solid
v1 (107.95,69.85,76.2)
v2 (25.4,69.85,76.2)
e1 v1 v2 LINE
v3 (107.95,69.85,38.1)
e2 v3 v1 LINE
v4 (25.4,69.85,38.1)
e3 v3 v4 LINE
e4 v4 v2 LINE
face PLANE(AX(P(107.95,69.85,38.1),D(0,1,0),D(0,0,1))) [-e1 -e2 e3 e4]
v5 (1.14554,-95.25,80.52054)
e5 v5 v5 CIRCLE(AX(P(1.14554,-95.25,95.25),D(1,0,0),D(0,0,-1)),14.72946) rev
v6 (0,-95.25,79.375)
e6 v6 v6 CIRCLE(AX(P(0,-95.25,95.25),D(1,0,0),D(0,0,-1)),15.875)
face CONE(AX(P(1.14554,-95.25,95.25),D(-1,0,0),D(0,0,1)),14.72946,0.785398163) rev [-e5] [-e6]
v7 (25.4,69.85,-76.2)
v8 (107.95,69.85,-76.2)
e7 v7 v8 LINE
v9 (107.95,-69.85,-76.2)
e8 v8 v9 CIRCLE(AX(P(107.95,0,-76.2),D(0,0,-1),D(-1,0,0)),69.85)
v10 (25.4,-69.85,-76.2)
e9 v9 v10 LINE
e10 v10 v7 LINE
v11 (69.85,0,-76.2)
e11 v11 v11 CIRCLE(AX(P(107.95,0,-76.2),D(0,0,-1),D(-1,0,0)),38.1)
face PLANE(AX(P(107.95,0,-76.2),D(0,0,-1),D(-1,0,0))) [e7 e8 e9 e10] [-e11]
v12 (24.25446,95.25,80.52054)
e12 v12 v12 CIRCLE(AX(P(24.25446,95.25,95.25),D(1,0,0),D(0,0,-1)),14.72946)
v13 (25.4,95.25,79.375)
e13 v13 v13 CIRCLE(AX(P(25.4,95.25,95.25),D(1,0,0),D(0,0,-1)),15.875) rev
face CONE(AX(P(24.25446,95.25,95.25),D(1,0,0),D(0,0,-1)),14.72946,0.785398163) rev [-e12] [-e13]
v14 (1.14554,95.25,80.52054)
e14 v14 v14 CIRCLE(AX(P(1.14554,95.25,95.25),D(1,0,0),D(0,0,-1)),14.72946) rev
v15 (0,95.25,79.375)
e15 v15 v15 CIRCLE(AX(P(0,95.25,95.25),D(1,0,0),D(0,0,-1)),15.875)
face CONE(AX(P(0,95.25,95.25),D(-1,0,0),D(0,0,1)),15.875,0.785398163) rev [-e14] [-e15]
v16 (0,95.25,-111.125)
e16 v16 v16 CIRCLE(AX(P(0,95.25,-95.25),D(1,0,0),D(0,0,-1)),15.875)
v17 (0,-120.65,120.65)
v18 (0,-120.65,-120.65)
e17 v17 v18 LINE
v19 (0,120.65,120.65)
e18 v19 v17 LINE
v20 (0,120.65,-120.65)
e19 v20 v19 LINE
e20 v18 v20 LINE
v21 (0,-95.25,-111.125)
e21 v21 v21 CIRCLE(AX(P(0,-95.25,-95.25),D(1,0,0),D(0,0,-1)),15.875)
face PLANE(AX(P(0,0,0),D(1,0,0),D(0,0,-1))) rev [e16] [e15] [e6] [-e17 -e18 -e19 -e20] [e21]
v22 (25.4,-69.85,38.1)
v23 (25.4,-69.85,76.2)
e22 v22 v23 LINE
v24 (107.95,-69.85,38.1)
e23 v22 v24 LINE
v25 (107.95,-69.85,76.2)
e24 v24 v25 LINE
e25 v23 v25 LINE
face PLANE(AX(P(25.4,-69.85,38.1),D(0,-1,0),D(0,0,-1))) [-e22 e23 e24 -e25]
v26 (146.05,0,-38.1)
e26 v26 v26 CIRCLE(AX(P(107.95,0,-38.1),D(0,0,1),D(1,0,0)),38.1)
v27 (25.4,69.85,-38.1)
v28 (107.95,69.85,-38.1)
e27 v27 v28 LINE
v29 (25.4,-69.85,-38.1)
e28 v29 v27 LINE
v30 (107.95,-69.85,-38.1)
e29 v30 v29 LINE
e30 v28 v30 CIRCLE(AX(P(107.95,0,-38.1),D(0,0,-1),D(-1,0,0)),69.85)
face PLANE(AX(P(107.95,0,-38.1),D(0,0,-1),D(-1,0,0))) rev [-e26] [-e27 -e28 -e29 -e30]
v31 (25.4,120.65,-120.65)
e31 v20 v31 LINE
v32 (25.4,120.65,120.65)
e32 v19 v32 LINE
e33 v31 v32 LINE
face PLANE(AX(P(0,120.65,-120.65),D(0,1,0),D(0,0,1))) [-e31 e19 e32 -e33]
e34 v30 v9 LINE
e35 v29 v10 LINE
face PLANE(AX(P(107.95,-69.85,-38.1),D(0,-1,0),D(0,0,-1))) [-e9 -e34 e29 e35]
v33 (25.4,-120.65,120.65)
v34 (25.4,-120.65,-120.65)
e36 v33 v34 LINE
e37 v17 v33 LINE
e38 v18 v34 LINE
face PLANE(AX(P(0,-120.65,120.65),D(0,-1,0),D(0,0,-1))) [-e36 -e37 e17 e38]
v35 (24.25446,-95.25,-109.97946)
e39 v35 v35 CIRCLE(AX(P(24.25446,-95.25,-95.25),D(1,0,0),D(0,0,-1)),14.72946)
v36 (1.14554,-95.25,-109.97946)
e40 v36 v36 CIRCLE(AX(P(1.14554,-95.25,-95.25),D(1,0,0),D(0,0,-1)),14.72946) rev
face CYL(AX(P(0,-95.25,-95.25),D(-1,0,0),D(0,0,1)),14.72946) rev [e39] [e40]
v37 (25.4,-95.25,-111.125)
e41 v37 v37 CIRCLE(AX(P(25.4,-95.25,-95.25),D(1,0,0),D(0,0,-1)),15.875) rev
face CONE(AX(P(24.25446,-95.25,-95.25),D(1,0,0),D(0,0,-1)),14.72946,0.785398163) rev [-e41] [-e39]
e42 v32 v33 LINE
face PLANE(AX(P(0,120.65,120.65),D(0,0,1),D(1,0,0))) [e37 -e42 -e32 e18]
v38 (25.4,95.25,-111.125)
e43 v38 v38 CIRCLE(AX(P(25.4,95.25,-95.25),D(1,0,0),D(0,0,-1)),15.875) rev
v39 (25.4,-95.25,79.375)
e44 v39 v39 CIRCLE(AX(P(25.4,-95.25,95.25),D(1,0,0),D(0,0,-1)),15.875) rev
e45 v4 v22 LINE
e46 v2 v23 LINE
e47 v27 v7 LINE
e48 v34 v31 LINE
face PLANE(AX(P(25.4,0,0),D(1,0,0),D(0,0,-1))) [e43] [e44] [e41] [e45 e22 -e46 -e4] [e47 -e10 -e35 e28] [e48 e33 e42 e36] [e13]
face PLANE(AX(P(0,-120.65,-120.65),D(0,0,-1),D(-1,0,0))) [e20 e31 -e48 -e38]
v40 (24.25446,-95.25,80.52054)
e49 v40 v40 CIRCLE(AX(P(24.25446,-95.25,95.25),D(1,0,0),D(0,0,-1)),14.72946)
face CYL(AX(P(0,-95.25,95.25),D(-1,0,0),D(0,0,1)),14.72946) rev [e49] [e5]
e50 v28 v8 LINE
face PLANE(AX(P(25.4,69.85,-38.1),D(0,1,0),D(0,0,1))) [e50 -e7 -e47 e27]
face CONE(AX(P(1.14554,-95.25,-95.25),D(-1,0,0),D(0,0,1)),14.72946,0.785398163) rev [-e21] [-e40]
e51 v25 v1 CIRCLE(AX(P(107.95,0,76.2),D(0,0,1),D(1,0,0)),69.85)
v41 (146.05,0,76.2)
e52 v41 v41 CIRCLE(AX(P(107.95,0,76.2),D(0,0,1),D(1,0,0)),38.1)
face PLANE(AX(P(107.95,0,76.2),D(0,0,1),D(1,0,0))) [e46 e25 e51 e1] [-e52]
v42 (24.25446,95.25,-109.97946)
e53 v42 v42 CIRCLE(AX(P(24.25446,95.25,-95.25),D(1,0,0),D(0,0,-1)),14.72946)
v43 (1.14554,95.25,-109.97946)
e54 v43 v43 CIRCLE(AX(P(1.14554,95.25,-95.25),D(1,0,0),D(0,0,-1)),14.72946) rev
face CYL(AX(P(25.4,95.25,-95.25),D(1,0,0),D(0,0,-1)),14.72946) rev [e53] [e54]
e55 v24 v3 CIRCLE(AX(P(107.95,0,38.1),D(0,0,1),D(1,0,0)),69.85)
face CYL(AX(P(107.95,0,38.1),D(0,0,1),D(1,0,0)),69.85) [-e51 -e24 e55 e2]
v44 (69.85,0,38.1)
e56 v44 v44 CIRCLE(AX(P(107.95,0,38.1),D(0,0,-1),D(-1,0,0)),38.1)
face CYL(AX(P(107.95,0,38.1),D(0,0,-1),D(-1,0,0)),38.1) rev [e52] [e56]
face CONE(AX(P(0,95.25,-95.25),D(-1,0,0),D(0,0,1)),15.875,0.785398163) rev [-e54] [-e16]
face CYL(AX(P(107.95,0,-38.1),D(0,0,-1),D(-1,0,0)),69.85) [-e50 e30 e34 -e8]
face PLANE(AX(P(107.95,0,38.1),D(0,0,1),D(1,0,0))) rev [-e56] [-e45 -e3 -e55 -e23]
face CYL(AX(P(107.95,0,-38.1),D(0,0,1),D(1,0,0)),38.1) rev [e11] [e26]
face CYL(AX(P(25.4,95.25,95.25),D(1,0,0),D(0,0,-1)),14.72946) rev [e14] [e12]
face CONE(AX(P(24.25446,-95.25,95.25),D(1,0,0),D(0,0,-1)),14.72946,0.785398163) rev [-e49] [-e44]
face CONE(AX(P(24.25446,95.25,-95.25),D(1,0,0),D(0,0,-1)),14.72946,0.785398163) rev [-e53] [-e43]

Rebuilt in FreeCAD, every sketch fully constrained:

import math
import FreeCAD as App
import Part
import Sketcher

V = App.Vector
Q = App.Units.Quantity


def edges_at(feature, points):
    """Names of the edges that pass closest to the given points."""
    edges = feature.Shape.Edges
    near = lambda p: min(range(len(edges)), key=lambda i: edges[i].distToShape(Part.Vertex(*p))[0])
    return sorted({f"Edge{near(p) + 1}" for p in points})


def add_polygon(sketch, points):
    """Adds a closed chain of lines whose ends are joined by coincident constraints."""
    first, n = sketch.GeometryCount, len(points)
    for a, b in zip(points, points[1:] + points[:1]):
        sketch.addGeometry(Part.LineSegment(App.Vector(*a, 0), App.Vector(*b, 0)), False)
    for i in range(n):
        sketch.addConstraint(Sketcher.Constraint("Coincident", first + i, 2, first + (i + 1) % n, 1))

doc = App.newDocument("Part")
body = doc.addObject("PartDesign::Body", "Body")

# Sketch on YZ plane
sketch1 = body.newObject("Sketcher::SketchObject", "Sketch")
sketch1.AttachmentSupport = (doc.getObject("YZ_Plane"), [""])
sketch1.MapMode = "FlatFace"
sketch1.AttachmentOffset = App.Placement(V(0, 0, 1 * 25.4), App.Rotation())
add_polygon(sketch1, [(120.65, 120.65), (-120.65, 120.65), (-120.65, -120.65), (120.65, -120.65)])  # lines 0-3
sketch1.addConstraint([
    Sketcher.Constraint("Horizontal", 0),
    Sketcher.Constraint("Vertical", 1),
    Sketcher.Constraint("Horizontal", 2),
    Sketcher.Constraint("Vertical", 3),
    Sketcher.Constraint("Symmetric", 0, 2, 2, 2, -1, 1),
    Sketcher.Constraint("Equal", 2, 1),
    Sketcher.Constraint("DistanceX", 0, 2, 0, 1, Q("9.5 in")),
])
pad1 = body.newObject("PartDesign::Pad", "Pad")
pad1.Profile = sketch1
pad1.Length = Q("1 in")
pad1.Reversed = True

# Sketch on XY plane
sketch2 = body.newObject("Sketcher::SketchObject", "Sketch001")
sketch2.AttachmentSupport = (doc.getObject("XY_Plane"), [""])
sketch2.MapMode = "FlatFace"
sketch2.AttachmentOffset = App.Placement(V(0, 0, -3 * 25.4), App.Rotation())
sketch2.addGeometry([
    Part.LineSegment(V(25.4, -69.85, 0), V(25.4, 69.85, 0)),
    Part.LineSegment(V(25.4, 69.85, 0), V(107.95, 69.85, 0)),
    Part.ArcOfCircle(Part.Circle(V(107.95, 0, 0), V(0, 0, 1), 69.85), math.radians(-90), math.radians(90)),
    Part.LineSegment(V(107.95, -69.85, 0), V(25.4, -69.85, 0)),
], False)
sketch2.addConstraint([
    Sketcher.Constraint("Coincident", 0, 2, 1, 1),
    Sketcher.Constraint("Tangent", 1, 2, 2, 2),
    Sketcher.Constraint("Tangent", 2, 1, 3, 1),
    Sketcher.Constraint("Coincident", 3, 2, 0, 1),
    Sketcher.Constraint("Vertical", 0),
    Sketcher.Constraint("Horizontal", 1),
    Sketcher.Constraint("Horizontal", 3),
    Sketcher.Constraint("PointOnObject", 2, 3, -1),
    Sketcher.Constraint("Radius", 2, Q("2.75 in")),
    Sketcher.Constraint("DistanceX", -1, 1, 0, 2, Q("1 in")),
    Sketcher.Constraint("DistanceX", 1, 1, 1, 2, Q("3.25 in")),
])
pad2 = body.newObject("PartDesign::Pad", "Pad001")
pad2.Profile = sketch2
pad2.Length = Q("1.5 in")

# Sketch on XY plane
sketch3 = body.newObject("Sketcher::SketchObject", "Sketch002")
sketch3.AttachmentSupport = (doc.getObject("XY_Plane"), [""])
sketch3.MapMode = "FlatFace"
sketch3.AttachmentOffset = App.Placement(V(0, 0, 1.5 * 25.4), App.Rotation())
sketch3.addGeometry([
    Part.LineSegment(V(25.4, 69.85, 0), V(25.4, -69.85, 0)),
    Part.LineSegment(V(25.4, -69.85, 0), V(107.95, -69.85, 0)),
    Part.ArcOfCircle(Part.Circle(V(107.95, 0, 0), V(0, 0, 1), 69.85), math.radians(-90), math.radians(90)),
    Part.LineSegment(V(107.95, 69.85, 0), V(25.4, 69.85, 0)),
], False)
sketch3.addConstraint([
    Sketcher.Constraint("Coincident", 0, 2, 1, 1),
    Sketcher.Constraint("Tangent", 1, 2, 2, 1),
    Sketcher.Constraint("Tangent", 2, 2, 3, 1),
    Sketcher.Constraint("Coincident", 3, 2, 0, 1),
    Sketcher.Constraint("Vertical", 0),
    Sketcher.Constraint("Horizontal", 1),
    Sketcher.Constraint("Horizontal", 3),
    Sketcher.Constraint("PointOnObject", 2, 3, -1),
    Sketcher.Constraint("Radius", 2, Q("2.75 in")),
    Sketcher.Constraint("DistanceX", -1, 1, 0, 2, Q("1 in")),
    Sketcher.Constraint("DistanceX", 1, 1, 1, 2, Q("3.25 in")),
])
pad3 = body.newObject("PartDesign::Pad", "Pad002")
pad3.Profile = sketch3
pad3.Length = Q("1.5 in")

# Sketch on YZ plane
sketch4 = body.newObject("Sketcher::SketchObject", "Sketch003")
sketch4.AttachmentSupport = (doc.getObject("YZ_Plane"), [""])
sketch4.MapMode = "FlatFace"
sketch4.addGeometry([
    Part.Circle(V(-95.25, -95.25, 0), V(0, 0, 1), 14.72946),
    Part.Circle(V(-95.25, 95.25, 0), V(0, 0, 1), 14.72946),
], False)
sketch4.addConstraint([
    Sketcher.Constraint("Equal", 0, 1),
    Sketcher.Constraint("Symmetric", 0, 3, 1, 3, -1),
    Sketcher.Constraint("Diameter", 0, Q("1.1598 in")),
    Sketcher.Constraint("DistanceY", 0, 3, 1, 3, Q("7.5 in")),
    Sketcher.Constraint("DistanceX", 0, 3, -1, 1, Q("3.75 in")),
])
doc.recompute()
hole = body.newObject("PartDesign::Hole", "Hole")
hole.Profile = sketch4
hole.ThreadType = "None"
hole.Diameter = Q("1.1598 in")
hole.DepthType = "Dimension"
hole.Depth = Q("7 in")
hole.DrillPoint = "Flat"
hole.Reversed = True

# Sketch on YZ plane
sketch5 = body.newObject("Sketcher::SketchObject", "Sketch004")
sketch5.AttachmentSupport = (doc.getObject("YZ_Plane"), [""])
sketch5.MapMode = "FlatFace"
sketch5.AttachmentOffset = App.Placement(V(0, 0, 1 * 25.4), App.Rotation())
sketch5.addGeometry([
    Part.Circle(V(95.25, 95.25, 0), V(0, 0, 1), 14.72946),
    Part.Circle(V(95.25, -95.25, 0), V(0, 0, 1), 14.72946),
], False)
sketch5.addConstraint([
    Sketcher.Constraint("Equal", 0, 1),
    Sketcher.Constraint("Symmetric", 0, 3, 1, 3, -1),
    Sketcher.Constraint("Diameter", 0, Q("1.1598 in")),
    Sketcher.Constraint("DistanceY", 1, 3, 0, 3, Q("7.5 in")),
    Sketcher.Constraint("DistanceX", -1, 1, 0, 3, Q("3.75 in")),
])
doc.recompute()
hole2 = body.newObject("PartDesign::Hole", "Hole001")
hole2.Profile = sketch5
hole2.ThreadType = "None"
hole2.Diameter = Q("1.1598 in")
hole2.DepthType = "ThroughAll"

# Sketch on YZ plane
sketch6 = body.newObject("Sketcher::SketchObject", "Sketch005")
sketch6.AttachmentSupport = (doc.getObject("YZ_Plane"), [""])
sketch6.MapMode = "FlatFace"
sketch6.AttachmentOffset = App.Placement(V(0, 0, 4.25 * 25.4), App.Rotation())
add_polygon(sketch6, [(0, 120.65), (0, 38.1), (38.1, 38.1), (38.1, 120.65)])  # lines 0-3
sketch6.addConstraint([
    Sketcher.Constraint("Vertical", 0),
    Sketcher.Constraint("Horizontal", 1),
    Sketcher.Constraint("Vertical", 2),
    Sketcher.Constraint("Horizontal", 3),
    Sketcher.Constraint("PointOnObject", 0, 2, -2),
    Sketcher.Constraint("DistanceX", 1, 1, 1, 2, Q("1.5 in")),
    Sketcher.Constraint("DistanceY", 0, 2, 0, 1, Q("3.25 in")),
    Sketcher.Constraint("DistanceY", -1, 1, 0, 2, Q("1.5 in")),
])
groove = body.newObject("PartDesign::Groove", "Groove")
groove.Profile = sketch6
groove.ReferenceAxis = (sketch6, ["V_Axis"])
groove.Angle = 360

# Sketch on XY plane
sketch7 = body.newObject("Sketcher::SketchObject", "Sketch006")
sketch7.AttachmentSupport = (doc.getObject("XY_Plane"), [""])
sketch7.MapMode = "FlatFace"
sketch7.AttachmentOffset = App.Placement(V(0, 0, -1.5 * 25.4), App.Rotation())
sketch7.addGeometry(Part.Circle(V(107.95, 0, 0), V(0, 0, 1), 38.1), False)
sketch7.addConstraint([
    Sketcher.Constraint("PointOnObject", 0, 3, -1),
    Sketcher.Constraint("Diameter", 0, Q("3 in")),
    Sketcher.Constraint("DistanceX", -1, 1, 0, 3, Q("4.25 in")),
])
doc.recompute()
hole3 = body.newObject("PartDesign::Hole", "Hole002")
hole3.Profile = sketch7
hole3.ThreadType = "None"
hole3.Diameter = Q("3 in")
hole3.DepthType = "Dimension"
hole3.Depth = Q("3.25 in")
hole3.DrillPoint = "Flat"
doc.recompute()

chamfer = body.newObject("PartDesign::Chamfer", "Chamfer")
chamfer.Base = (hole3, edges_at(hole3, [
    (25.4, -95.25, 109.979),
    (0, -95.25, 109.979),
    (25.4, -95.25, -80.521),
    (0, -95.25, -80.521),
    (25.4, 95.25, -109.979),
    (0, 95.25, -109.979),
    (25.4, 95.25, 80.521),
    (0, 95.25, 80.521),
]))
chamfer.Size = Q("0.0451 in")

doc.recompute()
